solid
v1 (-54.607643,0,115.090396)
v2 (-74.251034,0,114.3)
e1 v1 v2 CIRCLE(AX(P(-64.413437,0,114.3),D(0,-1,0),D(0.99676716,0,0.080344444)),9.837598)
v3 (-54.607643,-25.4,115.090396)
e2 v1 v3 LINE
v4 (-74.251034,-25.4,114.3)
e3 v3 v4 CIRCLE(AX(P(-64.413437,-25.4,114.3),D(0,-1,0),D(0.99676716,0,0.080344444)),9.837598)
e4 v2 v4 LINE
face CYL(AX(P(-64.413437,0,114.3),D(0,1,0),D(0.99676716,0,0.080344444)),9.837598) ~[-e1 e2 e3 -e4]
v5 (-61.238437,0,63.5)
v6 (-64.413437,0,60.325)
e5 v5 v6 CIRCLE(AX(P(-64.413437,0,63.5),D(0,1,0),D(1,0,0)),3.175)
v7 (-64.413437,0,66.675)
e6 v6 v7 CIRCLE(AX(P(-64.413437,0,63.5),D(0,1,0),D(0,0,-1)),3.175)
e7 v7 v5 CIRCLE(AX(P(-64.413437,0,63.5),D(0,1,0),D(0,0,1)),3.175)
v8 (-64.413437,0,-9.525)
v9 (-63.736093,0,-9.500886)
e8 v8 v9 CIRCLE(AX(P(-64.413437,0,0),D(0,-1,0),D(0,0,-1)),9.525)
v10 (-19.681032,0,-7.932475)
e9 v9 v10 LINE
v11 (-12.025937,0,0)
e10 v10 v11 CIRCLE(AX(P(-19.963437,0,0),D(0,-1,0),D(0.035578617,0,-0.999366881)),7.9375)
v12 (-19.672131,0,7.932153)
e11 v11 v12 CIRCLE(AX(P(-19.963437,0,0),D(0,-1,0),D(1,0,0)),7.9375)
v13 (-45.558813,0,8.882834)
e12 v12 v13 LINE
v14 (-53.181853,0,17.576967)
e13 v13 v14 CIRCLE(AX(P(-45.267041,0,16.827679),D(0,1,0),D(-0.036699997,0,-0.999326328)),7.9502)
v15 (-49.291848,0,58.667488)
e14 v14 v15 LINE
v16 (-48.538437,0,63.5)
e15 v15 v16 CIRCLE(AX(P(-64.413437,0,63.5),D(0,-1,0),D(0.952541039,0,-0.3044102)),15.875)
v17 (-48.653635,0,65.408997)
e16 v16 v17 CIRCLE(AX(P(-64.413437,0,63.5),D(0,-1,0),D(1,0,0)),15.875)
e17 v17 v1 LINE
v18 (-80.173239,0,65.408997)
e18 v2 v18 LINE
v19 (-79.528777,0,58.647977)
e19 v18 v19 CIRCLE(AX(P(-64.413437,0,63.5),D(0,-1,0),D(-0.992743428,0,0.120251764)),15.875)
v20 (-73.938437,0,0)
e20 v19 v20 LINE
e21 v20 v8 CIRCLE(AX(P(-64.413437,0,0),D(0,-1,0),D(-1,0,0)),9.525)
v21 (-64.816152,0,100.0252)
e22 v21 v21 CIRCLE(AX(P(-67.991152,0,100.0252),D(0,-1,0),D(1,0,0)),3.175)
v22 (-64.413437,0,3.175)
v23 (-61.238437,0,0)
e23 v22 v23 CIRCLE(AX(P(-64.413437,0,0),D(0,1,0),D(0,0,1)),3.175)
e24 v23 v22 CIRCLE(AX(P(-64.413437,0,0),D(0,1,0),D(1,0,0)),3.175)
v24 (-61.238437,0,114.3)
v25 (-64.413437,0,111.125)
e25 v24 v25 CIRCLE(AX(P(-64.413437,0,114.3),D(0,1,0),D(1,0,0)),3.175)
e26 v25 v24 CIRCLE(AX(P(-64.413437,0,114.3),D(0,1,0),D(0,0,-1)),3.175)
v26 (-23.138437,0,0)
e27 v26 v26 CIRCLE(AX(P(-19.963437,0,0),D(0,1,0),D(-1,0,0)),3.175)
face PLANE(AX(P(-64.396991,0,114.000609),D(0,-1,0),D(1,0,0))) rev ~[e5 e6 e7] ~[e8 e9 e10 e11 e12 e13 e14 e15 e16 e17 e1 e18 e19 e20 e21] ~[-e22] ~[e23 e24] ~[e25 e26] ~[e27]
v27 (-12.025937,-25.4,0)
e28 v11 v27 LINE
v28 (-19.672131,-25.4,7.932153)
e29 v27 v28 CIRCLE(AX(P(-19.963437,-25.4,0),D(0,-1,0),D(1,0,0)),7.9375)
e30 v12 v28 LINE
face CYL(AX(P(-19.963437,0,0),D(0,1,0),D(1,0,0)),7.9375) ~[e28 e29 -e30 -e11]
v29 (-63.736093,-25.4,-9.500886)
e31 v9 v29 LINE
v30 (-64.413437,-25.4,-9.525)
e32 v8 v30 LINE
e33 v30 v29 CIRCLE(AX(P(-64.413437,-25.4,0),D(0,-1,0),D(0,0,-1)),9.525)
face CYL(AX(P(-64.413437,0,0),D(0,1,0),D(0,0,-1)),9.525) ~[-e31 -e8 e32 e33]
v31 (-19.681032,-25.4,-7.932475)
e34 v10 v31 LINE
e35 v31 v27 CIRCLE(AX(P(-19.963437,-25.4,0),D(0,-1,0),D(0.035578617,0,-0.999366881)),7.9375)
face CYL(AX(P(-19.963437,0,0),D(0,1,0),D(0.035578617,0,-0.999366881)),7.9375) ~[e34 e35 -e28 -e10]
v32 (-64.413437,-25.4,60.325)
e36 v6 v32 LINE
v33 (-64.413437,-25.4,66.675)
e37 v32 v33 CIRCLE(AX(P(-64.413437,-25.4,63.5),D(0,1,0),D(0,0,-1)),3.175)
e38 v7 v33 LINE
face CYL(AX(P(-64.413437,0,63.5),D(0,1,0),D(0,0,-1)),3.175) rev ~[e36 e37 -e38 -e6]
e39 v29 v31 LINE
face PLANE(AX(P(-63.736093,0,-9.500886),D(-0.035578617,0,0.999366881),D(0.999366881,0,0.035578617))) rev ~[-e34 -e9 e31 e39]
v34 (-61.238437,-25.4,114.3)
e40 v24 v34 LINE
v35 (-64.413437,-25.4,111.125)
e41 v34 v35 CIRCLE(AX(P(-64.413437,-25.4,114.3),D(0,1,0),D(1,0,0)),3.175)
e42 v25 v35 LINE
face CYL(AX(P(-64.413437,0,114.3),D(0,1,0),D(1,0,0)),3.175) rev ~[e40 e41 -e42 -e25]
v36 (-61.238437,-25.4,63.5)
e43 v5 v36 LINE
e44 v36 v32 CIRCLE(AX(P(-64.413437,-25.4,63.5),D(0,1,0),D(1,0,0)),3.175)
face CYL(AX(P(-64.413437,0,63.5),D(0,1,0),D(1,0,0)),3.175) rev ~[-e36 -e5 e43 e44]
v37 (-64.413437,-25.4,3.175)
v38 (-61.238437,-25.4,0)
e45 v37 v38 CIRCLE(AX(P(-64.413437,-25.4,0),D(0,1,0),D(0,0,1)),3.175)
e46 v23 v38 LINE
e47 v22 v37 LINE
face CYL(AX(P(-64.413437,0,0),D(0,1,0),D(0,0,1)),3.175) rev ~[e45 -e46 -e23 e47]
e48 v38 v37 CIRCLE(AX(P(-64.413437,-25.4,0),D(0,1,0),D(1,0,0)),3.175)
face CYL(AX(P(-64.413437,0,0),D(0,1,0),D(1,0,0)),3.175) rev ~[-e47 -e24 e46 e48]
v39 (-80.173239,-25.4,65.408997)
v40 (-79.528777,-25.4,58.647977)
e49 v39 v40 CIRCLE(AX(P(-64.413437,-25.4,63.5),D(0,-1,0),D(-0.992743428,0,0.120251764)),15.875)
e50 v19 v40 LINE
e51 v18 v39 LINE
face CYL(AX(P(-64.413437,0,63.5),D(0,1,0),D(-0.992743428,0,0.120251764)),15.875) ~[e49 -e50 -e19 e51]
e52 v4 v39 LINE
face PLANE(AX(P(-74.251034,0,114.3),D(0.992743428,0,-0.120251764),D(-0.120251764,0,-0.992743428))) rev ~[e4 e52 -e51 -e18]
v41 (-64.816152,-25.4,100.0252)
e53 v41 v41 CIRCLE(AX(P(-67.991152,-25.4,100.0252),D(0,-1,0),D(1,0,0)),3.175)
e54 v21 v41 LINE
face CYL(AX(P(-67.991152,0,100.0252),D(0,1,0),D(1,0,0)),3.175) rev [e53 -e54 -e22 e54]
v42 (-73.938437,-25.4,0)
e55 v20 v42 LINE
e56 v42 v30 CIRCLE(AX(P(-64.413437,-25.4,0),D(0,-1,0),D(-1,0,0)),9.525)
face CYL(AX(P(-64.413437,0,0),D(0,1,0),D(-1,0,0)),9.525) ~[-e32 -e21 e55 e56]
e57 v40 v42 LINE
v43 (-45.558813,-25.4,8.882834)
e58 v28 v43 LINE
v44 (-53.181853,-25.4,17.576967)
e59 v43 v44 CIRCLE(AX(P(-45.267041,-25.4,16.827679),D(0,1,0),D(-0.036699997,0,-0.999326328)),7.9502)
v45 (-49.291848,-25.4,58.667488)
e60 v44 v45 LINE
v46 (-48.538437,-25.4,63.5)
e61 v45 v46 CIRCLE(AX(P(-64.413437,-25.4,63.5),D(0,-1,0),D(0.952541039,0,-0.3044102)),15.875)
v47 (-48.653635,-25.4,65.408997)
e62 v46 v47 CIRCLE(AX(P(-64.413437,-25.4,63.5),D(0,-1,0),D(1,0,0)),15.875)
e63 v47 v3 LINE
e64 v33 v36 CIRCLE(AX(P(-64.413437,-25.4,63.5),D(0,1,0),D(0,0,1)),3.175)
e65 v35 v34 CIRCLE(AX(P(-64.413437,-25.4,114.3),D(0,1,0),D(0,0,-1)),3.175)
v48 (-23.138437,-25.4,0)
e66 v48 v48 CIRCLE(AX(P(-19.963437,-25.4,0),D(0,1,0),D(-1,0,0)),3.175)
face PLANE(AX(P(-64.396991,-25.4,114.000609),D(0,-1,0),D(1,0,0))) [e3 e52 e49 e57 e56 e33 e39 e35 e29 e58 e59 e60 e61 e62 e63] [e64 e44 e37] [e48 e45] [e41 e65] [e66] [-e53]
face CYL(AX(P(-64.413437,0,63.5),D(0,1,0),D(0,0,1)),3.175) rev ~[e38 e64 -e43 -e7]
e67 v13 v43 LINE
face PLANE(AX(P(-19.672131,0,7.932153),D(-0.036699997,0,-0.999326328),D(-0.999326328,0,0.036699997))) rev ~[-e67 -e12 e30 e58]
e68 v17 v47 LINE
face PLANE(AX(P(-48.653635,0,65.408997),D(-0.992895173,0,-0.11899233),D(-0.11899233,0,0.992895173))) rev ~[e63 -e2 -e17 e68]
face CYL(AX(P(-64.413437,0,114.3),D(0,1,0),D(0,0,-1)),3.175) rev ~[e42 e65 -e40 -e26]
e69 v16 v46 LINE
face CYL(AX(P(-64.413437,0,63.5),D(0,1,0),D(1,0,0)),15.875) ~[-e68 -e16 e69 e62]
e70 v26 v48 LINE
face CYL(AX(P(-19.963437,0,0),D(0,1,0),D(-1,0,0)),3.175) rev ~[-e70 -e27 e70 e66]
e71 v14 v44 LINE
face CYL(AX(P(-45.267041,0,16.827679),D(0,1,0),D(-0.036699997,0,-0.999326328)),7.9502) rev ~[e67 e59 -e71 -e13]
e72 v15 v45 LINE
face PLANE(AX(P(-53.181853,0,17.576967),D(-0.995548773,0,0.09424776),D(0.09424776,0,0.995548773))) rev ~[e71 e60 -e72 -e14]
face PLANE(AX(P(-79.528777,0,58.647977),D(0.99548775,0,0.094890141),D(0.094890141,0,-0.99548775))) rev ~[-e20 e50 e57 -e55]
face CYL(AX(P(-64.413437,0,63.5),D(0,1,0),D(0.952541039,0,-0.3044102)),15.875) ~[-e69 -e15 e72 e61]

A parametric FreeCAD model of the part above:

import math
import FreeCAD as App
import Part
import Sketcher
Q = App.Units.Quantity

doc = App.newDocument("Part")
body = doc.addObject("PartDesign::Body", "Body")

# Sketch on XZ plane
sketch1 = body.newObject("Sketcher::SketchObject", "Sketch")
sketch1.AttachmentSupport = (doc.getObject("XZ_Plane"), [""])
sketch1.MapMode = "FlatFace"
sketch1.addGeometry(Part.ArcOfCircle(Part.Circle(App.Vector(-64.4, 0, 0), App.Vector(0, 0, 1), 9.5), math.radians(-90), math.radians(-85.92)), False)
sketch1.addGeometry(Part.LineSegment(App.Vector(-63.7, -9.5, 0), App.Vector(-19.7, -7.9, 0)), False)
sketch1.addGeometry(Part.ArcOfCircle(Part.Circle(App.Vector(-20, 0, 0), App.Vector(0, 0, 1), 7.9), math.radians(-88), math.radians(0)), False)
sketch1.addGeometry(Part.ArcOfCircle(Part.Circle(App.Vector(-20, 0, 0), App.Vector(0, 0, 1), 7.9), math.radians(0), math.radians(88)), False)
sketch1.addGeometry(Part.LineSegment(App.Vector(-19.7, 7.9, 0), App.Vector(-45.6, 8.9, 0)), False)
sketch1.addGeometry(Part.ArcOfCircle(Part.Circle(App.Vector(-45.3, 16.8, 0), App.Vector(0, 0, 1), 8), math.radians(175), math.radians(268)), False)
sketch1.addGeometry(Part.LineSegment(App.Vector(-53.2, 17.6, 0), App.Vector(-49.3, 58.7, 0)), False)
sketch1.addGeometry(Part.ArcOfCircle(Part.Circle(App.Vector(-64.4, 63.5, 0), App.Vector(0, 0, 1), 15.9), math.radians(-17.72), math.radians(0)), False)
sketch1.addGeometry(Part.ArcOfCircle(Part.Circle(App.Vector(-64.4, 63.5, 0), App.Vector(0, 0, 1), 15.9), math.radians(0), math.radians(6.91)), False)
sketch1.addGeometry(Part.LineSegment(App.Vector(-48.7, 65.4, 0), App.Vector(-54.6, 115.1, 0)), False)
sketch1.addGeometry(Part.ArcOfCircle(Part.Circle(App.Vector(-64.4, 114.3, 0), App.Vector(0, 0, 1), 9.8), math.radians(5), math.radians(180)), False)
sketch1.addGeometry(Part.LineSegment(App.Vector(-74.3, 114.3, 0), App.Vector(-80.2, 65.4, 0)), False)
sketch1.addGeometry(Part.ArcOfCircle(Part.Circle(App.Vector(-64.4, 63.5, 0), App.Vector(0, 0, 1), 15.9), math.radians(173), math.radians(198)), False)
sketch1.addGeometry(Part.LineSegment(App.Vector(-79.5, 58.6, 0), App.Vector(-73.9, 0, 0)), False)
sketch1.addGeometry(Part.ArcOfCircle(Part.Circle(App.Vector(-64.4, 0, 0), App.Vector(0, 0, 1), 9.5), math.radians(180), math.radians(270)), False)
sketch1.addGeometry(Part.ArcOfCircle(Part.Circle(App.Vector(-64.4, 0, 0), App.Vector(0, 0, 1), 3.2), math.radians(90), math.radians(360)), False)
sketch1.addGeometry(Part.ArcOfCircle(Part.Circle(App.Vector(-64.4, 0, 0), App.Vector(0, 0, 1), 3.2), math.radians(0), math.radians(90)), False)
sketch1.addGeometry(Part.Circle(App.Vector(-20, 0, 0), App.Vector(0, 0, 1), 3.2), False)
sketch1.addGeometry(Part.ArcOfCircle(Part.Circle(App.Vector(-64.4, 63.5, 0), App.Vector(0, 0, 1), 3.2), math.radians(0), math.radians(90)), False)
sketch1.addGeometry(Part.ArcOfCircle(Part.Circle(App.Vector(-64.4, 63.5, 0), App.Vector(0, 0, 1), 3.2), math.radians(-90), math.radians(0)), False)
sketch1.addGeometry(Part.ArcOfCircle(Part.Circle(App.Vector(-64.4, 63.5, 0), App.Vector(0, 0, 1), 3.2), math.radians(90), math.radians(270)), False)
sketch1.addGeometry(Part.Circle(App.Vector(-68, 100, 0), App.Vector(0, 0, 1), 3.2), False)
sketch1.addGeometry(Part.ArcOfCircle(Part.Circle(App.Vector(-64.4, 114.3, 0), App.Vector(0, 0, 1), 3.2), math.radians(0), math.radians(270)), False)
sketch1.addGeometry(Part.ArcOfCircle(Part.Circle(App.Vector(-64.4, 114.3, 0), App.Vector(0, 0, 1), 3.2), math.radians(-90), math.radians(0)), False)
sketch1.addConstraint(Sketcher.Constraint("Coincident", 0, 2, 1, 1))
sketch1.addConstraint(Sketcher.Constraint("Tangent", 1, 2, 2, 1))
sketch1.addConstraint(Sketcher.Constraint("Tangent", 2, 2, 3, 1))
sketch1.addConstraint(Sketcher.Constraint("Tangent", 3, 2, 4, 1))
sketch1.addConstraint(Sketcher.Constraint("Tangent", 4, 2, 5, 2))
sketch1.addConstraint(Sketcher.Constraint("Tangent", 5, 1, 6, 1))
sketch1.addConstraint(Sketcher.Constraint("Coincident", 6, 2, 7, 1))
sketch1.addConstraint(Sketcher.Constraint("Tangent", 7, 2, 8, 1))
sketch1.addConstraint(Sketcher.Constraint("Coincident", 8, 2, 9, 1))
sketch1.addConstraint(Sketcher.Constraint("Coincident", 9, 2, 10, 1))
sketch1.addConstraint(Sketcher.Constraint("Coincident", 10, 2, 11, 1))
sketch1.addConstraint(Sketcher.Constraint("Tangent", 11, 2, 12, 1))
sketch1.addConstraint(Sketcher.Constraint("Coincident", 12, 2, 13, 1))
sketch1.addConstraint(Sketcher.Constraint("Coincident", 13, 2, 14, 1))
sketch1.addConstraint(Sketcher.Constraint("Tangent", 14, 2, 0, 1))
sketch1.addConstraint(Sketcher.Constraint("Tangent", 15, 1, 16, 2))
sketch1.addConstraint(Sketcher.Constraint("Coincident", 16, 1, 15, 2))
sketch1.addConstraint(Sketcher.Constraint("Tangent", 18, 1, 19, 2))
sketch1.addConstraint(Sketcher.Constraint("Tangent", 19, 1, 20, 2))
sketch1.addConstraint(Sketcher.Constraint("Tangent", 20, 1, 18, 2))
sketch1.addConstraint(Sketcher.Constraint("Tangent", 22, 1, 23, 2))
sketch1.addConstraint(Sketcher.Constraint("Coincident", 23, 1, 22, 2))
sketch1.addConstraint(Sketcher.Constraint("Coincident", 12, 3, 7, 3))
sketch1.addConstraint(Sketcher.Constraint("Coincident", 15, 3, 0, 3))
sketch1.addConstraint(Sketcher.Constraint("Coincident", 17, 3, 2, 3))
sketch1.addConstraint(Sketcher.Constraint("Coincident", 18, 3, 7, 3))
sketch1.addConstraint(Sketcher.Constraint("Coincident", 22, 3, 10, 3))
sketch1.addConstraint(Sketcher.Constraint("Equal", 2, 3))
sketch1.addConstraint(Sketcher.Constraint("Equal", 7, 8))
sketch1.addConstraint(Sketcher.Constraint("Equal", 8, 12))
sketch1.addConstraint(Sketcher.Constraint("Equal", 0, 14))
sketch1.addConstraint(Sketcher.Constraint("Equal", 16, 17))
sketch1.addConstraint(Sketcher.Constraint("Equal", 17, 18))
sketch1.addConstraint(Sketcher.Constraint("Equal", 20, 21))
sketch1.addConstraint(Sketcher.Constraint("Equal", 21, 22))
sketch1.addConstraint(Sketcher.Constraint("PointOnObject", 0, 3, -1))
sketch1.addConstraint(Sketcher.Constraint("PointOnObject", 2, 3, -1))
sketch1.addConstraint(Sketcher.Constraint("PointOnObject", 2, 2, -1))
sketch1.addConstraint(Sketcher.Constraint("PointOnObject", 13, 2, -1))
sketch1.addConstraint(Sketcher.Constraint("PointOnObject", 16, 1, -1))
sketch1.addConstraint(Sketcher.Constraint("Horizontal", 20, 3, 7, 2))
sketch1.addConstraint(Sketcher.Constraint("Horizontal", 23, 3, 10, 2))
sketch1.addConstraint(Sketcher.Constraint("Horizontal", 8, 2, 11, 2))
sketch1.addConstraint(Sketcher.Constraint("Horizontal", 7, 2, 18, 1))
sketch1.addConstraint(Sketcher.Constraint("Horizontal", 10, 2, 22, 1))
sketch1.addConstraint(Sketcher.Constraint("Vertical", 0, 3, 7, 3))
sketch1.addConstraint(Sketcher.Constraint("Vertical", 8, 3, 10, 3))
sketch1.addConstraint(Sketcher.Constraint("Vertical", 23, 3, 14, 2))
sketch1.addConstraint(Sketcher.Constraint("Vertical", 14, 2, 15, 1))
sketch1.addConstraint(Sketcher.Constraint("Vertical", 15, 1, 19, 1))
sketch1.addConstraint(Sketcher.Constraint("Vertical", 19, 1, 20, 1))
sketch1.addConstraint(Sketcher.Constraint("Vertical", 20, 1, 23, 1))
sketch1.addConstraint(Sketcher.Constraint("Diameter", 17, Q("0.25 in")))
sketch1.addConstraint(Sketcher.Constraint("Radius", 0, Q("0.375 in")))
sketch1.addConstraint(Sketcher.Constraint("Radius", 2, Q("0.3125 in")))
sketch1.addConstraint(Sketcher.Constraint("Radius", 5, Q("0.313 in")))
sketch1.addConstraint(Sketcher.Constraint("Radius", 7, Q("0.625 in")))
sketch1.addConstraint(Sketcher.Constraint("DistanceY", 7, 3, 10, 3, Q("2 in")))
sketch1.addConstraint(Sketcher.Constraint("DistanceY", -1, 1, 7, 3, Q("2.5 in")))
sketch1.addConstraint(Sketcher.Constraint("DistanceX", 0, 3, 2, 3, Q("1.75 in")))
sketch1.addConstraint(Sketcher.Constraint("DistanceY", -1, 1, 21, 3, Q("3.938 in")))
sketch1.addConstraint(Sketcher.Constraint("Radius", 10, 9.837598))
sketch1.addConstraint(Sketcher.Constraint("DistanceX", 1, 2, 3, 2, 0.008901))
sketch1.addConstraint(Sketcher.Constraint("DistanceY", 8, 2, 9, 2, 49.6814))
sketch1.addConstraint(Sketcher.Constraint("Distance", 1, 44.082972))
sketch1.addConstraint(Sketcher.Constraint("Distance", 13, 58.913811))
sketch1.addConstraint(Sketcher.Constraint("DistanceX", 5, 3, -1, 1, 45.267041))
sketch1.addConstraint(Sketcher.Constraint("DistanceY", -1, 1, 5, 3, 16.827679))
sketch1.addConstraint(Sketcher.Constraint("DistanceY", -1, 1, 6, 2, 58.667488))
sketch1.addConstraint(Sketcher.Constraint("DistanceX", 21, 3, 9, 2, 13.38351))
pad1 = body.newObject("PartDesign::Pad", "Pad")
pad1.Profile = sketch1
pad1.Length = Q("1 in")

doc.recompute()
